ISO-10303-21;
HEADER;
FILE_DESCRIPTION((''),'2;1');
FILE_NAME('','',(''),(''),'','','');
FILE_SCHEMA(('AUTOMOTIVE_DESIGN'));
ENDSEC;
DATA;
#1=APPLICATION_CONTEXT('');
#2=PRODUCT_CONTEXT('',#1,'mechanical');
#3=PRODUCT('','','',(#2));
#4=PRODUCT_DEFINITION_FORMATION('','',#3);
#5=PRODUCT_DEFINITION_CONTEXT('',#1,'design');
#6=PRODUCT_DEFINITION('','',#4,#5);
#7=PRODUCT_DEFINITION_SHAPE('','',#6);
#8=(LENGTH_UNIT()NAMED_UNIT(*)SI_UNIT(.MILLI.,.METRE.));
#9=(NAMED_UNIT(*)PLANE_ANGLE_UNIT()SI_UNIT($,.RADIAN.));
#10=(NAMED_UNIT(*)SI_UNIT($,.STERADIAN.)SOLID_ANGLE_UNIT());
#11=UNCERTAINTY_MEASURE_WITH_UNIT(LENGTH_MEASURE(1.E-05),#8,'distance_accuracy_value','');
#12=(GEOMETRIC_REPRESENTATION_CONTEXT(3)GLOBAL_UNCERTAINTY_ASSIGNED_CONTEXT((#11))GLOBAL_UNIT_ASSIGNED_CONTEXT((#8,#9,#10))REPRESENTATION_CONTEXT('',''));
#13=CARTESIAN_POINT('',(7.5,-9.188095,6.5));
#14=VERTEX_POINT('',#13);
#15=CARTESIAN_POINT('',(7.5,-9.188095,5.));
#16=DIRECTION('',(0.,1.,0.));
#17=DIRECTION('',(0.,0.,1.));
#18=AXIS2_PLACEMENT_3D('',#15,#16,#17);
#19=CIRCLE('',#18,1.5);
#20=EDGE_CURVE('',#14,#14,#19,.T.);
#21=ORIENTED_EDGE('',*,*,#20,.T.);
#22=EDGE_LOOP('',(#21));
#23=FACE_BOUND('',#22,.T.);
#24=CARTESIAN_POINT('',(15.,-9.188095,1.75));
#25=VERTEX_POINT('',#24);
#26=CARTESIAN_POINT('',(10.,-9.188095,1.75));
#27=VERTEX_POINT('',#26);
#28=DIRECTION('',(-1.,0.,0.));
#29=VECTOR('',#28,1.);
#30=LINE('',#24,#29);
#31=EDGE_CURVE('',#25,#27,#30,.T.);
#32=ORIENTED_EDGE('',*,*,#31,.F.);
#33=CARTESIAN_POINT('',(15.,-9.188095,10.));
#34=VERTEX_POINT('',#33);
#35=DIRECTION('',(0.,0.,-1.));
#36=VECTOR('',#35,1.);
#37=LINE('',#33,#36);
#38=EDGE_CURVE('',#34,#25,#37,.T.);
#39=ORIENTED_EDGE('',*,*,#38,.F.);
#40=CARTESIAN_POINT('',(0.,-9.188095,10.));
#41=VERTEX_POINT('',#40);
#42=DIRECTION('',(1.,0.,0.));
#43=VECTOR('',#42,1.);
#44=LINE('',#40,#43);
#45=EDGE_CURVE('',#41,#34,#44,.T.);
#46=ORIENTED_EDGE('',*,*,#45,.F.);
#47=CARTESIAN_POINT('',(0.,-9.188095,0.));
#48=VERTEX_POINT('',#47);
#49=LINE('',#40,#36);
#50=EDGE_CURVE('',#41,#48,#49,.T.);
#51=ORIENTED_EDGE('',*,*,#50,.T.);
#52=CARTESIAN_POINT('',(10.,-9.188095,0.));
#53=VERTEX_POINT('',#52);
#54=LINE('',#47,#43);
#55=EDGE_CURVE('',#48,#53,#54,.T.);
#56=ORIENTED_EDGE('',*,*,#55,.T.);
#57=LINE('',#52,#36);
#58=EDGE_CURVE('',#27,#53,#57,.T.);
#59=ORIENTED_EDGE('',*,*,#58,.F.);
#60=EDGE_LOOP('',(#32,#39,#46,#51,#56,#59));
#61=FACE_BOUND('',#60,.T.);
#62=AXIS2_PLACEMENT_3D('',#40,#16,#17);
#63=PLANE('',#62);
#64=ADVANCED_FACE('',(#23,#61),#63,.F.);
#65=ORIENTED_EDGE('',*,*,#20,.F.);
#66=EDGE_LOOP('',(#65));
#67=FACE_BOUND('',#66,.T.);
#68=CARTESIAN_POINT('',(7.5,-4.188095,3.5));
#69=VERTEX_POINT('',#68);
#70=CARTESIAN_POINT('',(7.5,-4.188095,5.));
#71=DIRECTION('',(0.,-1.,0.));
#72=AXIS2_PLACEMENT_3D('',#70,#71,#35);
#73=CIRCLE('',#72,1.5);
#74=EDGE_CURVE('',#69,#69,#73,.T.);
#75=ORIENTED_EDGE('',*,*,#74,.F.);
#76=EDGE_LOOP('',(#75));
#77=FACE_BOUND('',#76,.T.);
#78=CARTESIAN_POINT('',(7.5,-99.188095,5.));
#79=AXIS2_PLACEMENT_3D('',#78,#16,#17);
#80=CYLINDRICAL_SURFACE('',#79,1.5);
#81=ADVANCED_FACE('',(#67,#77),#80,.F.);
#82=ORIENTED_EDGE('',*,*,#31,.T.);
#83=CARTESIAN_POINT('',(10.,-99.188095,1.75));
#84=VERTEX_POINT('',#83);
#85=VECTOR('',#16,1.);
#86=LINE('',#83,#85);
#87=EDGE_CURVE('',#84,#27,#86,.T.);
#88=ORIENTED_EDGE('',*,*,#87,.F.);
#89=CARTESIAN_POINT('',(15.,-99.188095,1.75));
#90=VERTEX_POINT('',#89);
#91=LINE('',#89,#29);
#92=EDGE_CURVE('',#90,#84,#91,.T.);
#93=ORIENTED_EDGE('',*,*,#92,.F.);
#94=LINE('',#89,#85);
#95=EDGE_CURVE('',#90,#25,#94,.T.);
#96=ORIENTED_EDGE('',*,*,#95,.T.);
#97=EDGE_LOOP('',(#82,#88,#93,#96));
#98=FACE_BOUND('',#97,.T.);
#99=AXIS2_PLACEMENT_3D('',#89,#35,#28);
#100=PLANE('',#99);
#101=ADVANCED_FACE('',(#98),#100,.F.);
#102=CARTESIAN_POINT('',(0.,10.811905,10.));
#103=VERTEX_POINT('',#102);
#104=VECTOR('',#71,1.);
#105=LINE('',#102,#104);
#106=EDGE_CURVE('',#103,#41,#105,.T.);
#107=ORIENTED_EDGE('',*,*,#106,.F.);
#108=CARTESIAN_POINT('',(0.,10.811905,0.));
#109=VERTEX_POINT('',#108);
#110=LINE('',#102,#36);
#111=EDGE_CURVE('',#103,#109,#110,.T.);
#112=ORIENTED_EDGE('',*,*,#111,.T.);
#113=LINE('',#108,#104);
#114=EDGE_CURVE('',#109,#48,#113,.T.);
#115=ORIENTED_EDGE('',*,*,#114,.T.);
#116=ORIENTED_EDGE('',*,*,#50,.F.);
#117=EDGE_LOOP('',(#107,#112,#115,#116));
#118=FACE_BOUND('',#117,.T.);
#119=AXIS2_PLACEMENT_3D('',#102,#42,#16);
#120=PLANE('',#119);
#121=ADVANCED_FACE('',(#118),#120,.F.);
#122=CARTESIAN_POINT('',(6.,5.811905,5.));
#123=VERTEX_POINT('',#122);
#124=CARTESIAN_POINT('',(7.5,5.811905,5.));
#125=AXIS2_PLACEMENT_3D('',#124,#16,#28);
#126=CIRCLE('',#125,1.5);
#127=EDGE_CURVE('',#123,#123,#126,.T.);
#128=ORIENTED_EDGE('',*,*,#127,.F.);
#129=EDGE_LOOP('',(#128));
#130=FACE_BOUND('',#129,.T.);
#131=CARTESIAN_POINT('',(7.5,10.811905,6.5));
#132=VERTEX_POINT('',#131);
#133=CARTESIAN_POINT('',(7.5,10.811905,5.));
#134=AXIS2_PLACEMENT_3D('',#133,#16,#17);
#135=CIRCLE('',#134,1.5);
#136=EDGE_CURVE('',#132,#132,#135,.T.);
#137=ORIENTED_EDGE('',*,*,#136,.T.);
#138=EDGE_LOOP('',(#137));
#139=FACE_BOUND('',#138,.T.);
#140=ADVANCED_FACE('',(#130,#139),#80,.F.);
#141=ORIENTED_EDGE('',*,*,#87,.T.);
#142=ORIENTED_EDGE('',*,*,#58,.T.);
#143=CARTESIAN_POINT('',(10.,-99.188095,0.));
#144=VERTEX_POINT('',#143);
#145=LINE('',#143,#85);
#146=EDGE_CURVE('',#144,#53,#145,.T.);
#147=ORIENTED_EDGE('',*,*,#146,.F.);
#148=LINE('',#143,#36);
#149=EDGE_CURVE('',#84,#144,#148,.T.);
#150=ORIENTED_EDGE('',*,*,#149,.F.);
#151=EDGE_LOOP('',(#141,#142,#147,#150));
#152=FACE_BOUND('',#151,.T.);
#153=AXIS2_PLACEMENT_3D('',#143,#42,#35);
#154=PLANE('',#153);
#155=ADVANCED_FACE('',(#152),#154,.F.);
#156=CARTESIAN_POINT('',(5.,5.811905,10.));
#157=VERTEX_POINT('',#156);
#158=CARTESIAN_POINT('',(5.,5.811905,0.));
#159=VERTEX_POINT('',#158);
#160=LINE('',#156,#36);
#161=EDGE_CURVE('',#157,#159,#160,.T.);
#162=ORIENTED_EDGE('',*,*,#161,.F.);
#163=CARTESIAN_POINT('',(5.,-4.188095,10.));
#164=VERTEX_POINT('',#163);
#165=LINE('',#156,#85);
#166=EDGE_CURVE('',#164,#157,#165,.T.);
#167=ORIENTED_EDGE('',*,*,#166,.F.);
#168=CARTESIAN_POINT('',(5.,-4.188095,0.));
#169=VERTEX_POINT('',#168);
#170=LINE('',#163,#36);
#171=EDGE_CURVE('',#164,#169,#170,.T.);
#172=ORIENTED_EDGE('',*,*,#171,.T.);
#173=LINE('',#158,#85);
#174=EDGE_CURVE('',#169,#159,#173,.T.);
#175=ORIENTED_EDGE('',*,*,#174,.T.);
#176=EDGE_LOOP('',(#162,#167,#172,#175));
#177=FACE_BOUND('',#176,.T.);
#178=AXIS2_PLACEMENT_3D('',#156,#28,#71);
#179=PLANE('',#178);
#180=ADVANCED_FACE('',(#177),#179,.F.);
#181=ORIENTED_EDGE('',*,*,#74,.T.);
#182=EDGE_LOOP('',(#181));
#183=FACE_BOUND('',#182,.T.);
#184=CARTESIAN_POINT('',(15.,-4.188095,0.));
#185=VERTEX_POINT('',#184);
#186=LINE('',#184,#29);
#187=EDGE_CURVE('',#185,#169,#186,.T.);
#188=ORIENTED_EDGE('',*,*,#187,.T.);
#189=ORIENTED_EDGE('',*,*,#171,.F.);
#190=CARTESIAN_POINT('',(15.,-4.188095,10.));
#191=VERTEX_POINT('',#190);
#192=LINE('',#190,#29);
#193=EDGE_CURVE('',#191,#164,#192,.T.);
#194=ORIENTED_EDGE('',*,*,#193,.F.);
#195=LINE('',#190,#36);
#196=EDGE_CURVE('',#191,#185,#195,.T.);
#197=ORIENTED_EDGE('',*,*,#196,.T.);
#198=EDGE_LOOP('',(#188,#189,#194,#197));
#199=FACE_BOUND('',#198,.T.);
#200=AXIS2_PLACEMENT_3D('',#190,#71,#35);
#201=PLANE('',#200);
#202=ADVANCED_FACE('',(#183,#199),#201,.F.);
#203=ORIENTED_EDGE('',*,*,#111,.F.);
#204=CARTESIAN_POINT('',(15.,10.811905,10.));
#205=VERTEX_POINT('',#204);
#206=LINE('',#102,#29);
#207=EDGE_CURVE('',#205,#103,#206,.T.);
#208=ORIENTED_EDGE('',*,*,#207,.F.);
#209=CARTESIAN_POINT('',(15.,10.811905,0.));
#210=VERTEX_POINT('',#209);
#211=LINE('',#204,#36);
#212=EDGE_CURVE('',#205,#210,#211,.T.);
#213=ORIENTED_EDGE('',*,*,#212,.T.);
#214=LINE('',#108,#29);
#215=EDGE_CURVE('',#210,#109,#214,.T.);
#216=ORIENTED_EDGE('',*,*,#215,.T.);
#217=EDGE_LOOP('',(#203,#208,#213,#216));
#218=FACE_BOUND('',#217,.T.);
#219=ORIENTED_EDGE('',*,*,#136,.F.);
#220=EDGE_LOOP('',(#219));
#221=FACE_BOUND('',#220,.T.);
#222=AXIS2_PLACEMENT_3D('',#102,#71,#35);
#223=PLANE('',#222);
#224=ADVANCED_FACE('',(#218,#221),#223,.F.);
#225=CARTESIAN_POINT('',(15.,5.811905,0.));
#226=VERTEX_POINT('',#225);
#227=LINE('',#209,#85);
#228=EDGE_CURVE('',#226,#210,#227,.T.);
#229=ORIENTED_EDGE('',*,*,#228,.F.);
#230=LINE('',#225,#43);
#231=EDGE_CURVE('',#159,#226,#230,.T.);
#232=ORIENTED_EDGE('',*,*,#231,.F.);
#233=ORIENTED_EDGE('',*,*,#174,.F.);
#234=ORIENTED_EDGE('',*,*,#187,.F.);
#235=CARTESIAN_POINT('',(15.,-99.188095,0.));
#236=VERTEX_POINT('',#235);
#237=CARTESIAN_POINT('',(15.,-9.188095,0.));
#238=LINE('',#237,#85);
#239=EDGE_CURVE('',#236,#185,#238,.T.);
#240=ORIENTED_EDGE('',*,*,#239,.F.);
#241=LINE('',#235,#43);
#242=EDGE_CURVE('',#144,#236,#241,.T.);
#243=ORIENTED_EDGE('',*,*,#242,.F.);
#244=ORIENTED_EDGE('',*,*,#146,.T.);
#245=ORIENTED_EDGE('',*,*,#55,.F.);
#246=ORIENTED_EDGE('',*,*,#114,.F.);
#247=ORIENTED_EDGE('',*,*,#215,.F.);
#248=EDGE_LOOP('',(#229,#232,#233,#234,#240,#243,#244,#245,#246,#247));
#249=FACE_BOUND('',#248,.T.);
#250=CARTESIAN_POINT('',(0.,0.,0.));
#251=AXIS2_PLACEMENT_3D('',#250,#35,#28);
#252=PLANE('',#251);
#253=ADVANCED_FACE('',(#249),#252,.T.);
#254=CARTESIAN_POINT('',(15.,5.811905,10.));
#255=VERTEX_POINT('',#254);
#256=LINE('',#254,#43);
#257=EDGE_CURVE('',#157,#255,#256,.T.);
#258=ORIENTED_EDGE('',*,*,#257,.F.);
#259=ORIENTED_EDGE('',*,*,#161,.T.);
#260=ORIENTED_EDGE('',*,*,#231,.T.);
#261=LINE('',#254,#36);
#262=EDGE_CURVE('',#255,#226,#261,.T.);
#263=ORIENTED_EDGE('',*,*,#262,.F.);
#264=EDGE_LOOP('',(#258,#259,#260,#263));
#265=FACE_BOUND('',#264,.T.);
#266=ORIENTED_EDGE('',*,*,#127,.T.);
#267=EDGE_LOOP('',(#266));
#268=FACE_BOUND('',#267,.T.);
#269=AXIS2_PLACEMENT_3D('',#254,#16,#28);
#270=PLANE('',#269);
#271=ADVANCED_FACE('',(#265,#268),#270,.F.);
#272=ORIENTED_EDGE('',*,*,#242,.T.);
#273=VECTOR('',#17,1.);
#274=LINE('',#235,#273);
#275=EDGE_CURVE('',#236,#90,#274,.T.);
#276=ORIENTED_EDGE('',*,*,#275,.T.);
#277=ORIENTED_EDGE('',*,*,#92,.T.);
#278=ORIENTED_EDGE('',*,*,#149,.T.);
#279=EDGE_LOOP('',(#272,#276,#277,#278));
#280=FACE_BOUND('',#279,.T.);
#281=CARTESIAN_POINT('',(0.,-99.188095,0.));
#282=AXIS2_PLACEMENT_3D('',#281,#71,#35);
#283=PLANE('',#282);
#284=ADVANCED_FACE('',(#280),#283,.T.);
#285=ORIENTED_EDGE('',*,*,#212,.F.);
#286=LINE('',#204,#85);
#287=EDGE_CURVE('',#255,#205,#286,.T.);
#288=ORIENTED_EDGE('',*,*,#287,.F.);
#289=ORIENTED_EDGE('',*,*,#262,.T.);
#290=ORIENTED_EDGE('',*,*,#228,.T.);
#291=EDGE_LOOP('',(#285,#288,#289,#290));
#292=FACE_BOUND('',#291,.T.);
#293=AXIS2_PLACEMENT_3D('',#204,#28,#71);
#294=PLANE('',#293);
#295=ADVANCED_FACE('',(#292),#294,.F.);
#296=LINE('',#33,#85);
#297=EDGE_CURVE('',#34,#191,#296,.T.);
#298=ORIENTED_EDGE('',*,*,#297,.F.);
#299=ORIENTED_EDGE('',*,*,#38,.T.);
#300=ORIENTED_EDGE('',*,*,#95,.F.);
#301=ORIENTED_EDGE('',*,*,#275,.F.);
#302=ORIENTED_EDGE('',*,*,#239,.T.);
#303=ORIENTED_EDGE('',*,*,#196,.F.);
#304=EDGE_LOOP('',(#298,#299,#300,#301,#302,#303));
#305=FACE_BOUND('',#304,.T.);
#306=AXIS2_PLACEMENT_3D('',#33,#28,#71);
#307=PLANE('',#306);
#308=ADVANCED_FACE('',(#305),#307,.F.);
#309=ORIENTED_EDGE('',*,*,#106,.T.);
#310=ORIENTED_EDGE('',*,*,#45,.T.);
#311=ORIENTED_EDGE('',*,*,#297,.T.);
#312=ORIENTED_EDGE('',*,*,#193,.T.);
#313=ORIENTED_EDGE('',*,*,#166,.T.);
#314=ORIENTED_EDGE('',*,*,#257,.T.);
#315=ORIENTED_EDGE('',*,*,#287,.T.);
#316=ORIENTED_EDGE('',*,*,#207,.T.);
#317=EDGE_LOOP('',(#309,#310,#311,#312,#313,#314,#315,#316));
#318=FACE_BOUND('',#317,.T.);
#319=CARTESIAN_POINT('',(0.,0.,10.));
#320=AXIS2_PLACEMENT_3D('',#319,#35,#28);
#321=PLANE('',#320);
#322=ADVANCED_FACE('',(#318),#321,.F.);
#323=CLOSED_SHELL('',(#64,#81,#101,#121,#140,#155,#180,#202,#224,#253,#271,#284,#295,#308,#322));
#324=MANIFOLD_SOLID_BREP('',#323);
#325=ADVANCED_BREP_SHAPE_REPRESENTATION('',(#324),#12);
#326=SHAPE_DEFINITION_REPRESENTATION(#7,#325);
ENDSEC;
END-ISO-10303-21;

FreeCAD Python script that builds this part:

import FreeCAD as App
import Part
import Sketcher

V = App.Vector


def add_polygon(sketch, points):
    """Adds a closed chain of lines whose ends are joined by coincident constraints."""
    first, n = sketch.GeometryCount, len(points)
    for a, b in zip(points, points[1:] + points[:1]):
        sketch.addGeometry(Part.LineSegment(App.Vector(*a, 0), App.Vector(*b, 0)), False)
    for i in range(n):
        sketch.addConstraint(Sketcher.Constraint("Coincident", first + i, 2, first + (i + 1) % n, 1))

doc = App.newDocument("Part")
body = doc.addObject("PartDesign::Body", "Body")

sketch1 = body.newObject("Sketcher::SketchObject", "Sketch")
sketch1.AttachmentSupport = (doc.getObject("XY_Plane"), [""])
sketch1.MapMode = "FlatFace"
add_polygon(sketch1, [(0, 10.811905), (0, -9.188095), (15, -9.188095), (15, -4.188095), (5, -4.188095), (5, 5.811905), (15, 5.811905), (15, 10.811905)])
sketch1.addConstraint(Sketcher.Constraint("Vertical", 0))
sketch1.addConstraint(Sketcher.Constraint("Horizontal", 1))
sketch1.addConstraint(Sketcher.Constraint("Vertical", 2))
sketch1.addConstraint(Sketcher.Constraint("Horizontal", 3))
sketch1.addConstraint(Sketcher.Constraint("Vertical", 4))
sketch1.addConstraint(Sketcher.Constraint("Horizontal", 5))
sketch1.addConstraint(Sketcher.Constraint("Vertical", 6))
sketch1.addConstraint(Sketcher.Constraint("Horizontal", 7))
sketch1.addConstraint(Sketcher.Constraint("PointOnObject", 0, 2, -2))
sketch1.addConstraint(Sketcher.Constraint("Vertical", 2, 2, 5, 2))
sketch1.addConstraint(Sketcher.Constraint("Equal", 5, 4))
sketch1.addConstraint(Sketcher.Constraint("Equal", 2, 6))
sketch1.addConstraint(Sketcher.Constraint("DistanceX", 1, 1, 1, 2, 15.0))
sketch1.addConstraint(Sketcher.Constraint("DistanceX", 3, 2, 3, 1, 10.0))
sketch1.addConstraint(Sketcher.Constraint("DistanceY", 0, 2, 0, 1, 20.0))
sketch1.addConstraint(Sketcher.Constraint("DistanceY", 0, 2, -1, 1, 9.188095))
pad1 = body.newObject("PartDesign::Pad", "Pad")
pad1.Profile = sketch1
pad1.Length = 10

sketch2 = body.newObject("Sketcher::SketchObject", "Sketch001")
sketch2.AttachmentSupport = (doc.getObject("XZ_Plane"), [""])
sketch2.MapMode = "FlatFace"
sketch2.AttachmentOffset = App.Placement(V(0, 0, 9.188095), App.Rotation())
add_polygon(sketch2, [(15, 0), (15, 1.75), (10, 1.75), (10, 0)])
sketch2.addConstraint(Sketcher.Constraint("Vertical", 0))
sketch2.addConstraint(Sketcher.Constraint("Horizontal", 1))
sketch2.addConstraint(Sketcher.Constraint("Vertical", 2))
sketch2.addConstraint(Sketcher.Constraint("Horizontal", 3))
sketch2.addConstraint(Sketcher.Constraint("PointOnObject", 2, 2, -1))
sketch2.addConstraint(Sketcher.Constraint("DistanceX", 1, 2, 1, 1, 5.0))
sketch2.addConstraint(Sketcher.Constraint("DistanceX", -1, 1, 0, 2, 15.0))
sketch2.addConstraint(Sketcher.Constraint("DistanceY", 0, 1, 0, 2, 1.75))
pad2 = body.newObject("PartDesign::Pad", "Pad001")
pad2.Profile = sketch2
pad2.Length = 90

sketch3 = body.newObject("Sketcher::SketchObject", "Sketch002")
sketch3.AttachmentSupport = (doc.getObject("XZ_Plane"), [""])
sketch3.MapMode = "FlatFace"
sketch3.AttachmentOffset = App.Placement(V(0, 0, -10.811905), App.Rotation())
sketch3.addGeometry(Part.Circle(V(7.5, 5, 0), V(0, 0, 1), 1.5), False)
sketch3.addConstraint(Sketcher.Constraint("Diameter", 0, 3.0))
sketch3.addConstraint(Sketcher.Constraint("DistanceY", -1, 1, 0, 3, 5.0))
sketch3.addConstraint(Sketcher.Constraint("DistanceX", -1, 1, 0, 3, 7.5))
pocket1 = body.newObject("PartDesign::Pocket", "Pocket")
pocket1.Profile = sketch3
pocket1.Type = "ThroughAll"
pocket1.Reversed = True

doc.recompute()
